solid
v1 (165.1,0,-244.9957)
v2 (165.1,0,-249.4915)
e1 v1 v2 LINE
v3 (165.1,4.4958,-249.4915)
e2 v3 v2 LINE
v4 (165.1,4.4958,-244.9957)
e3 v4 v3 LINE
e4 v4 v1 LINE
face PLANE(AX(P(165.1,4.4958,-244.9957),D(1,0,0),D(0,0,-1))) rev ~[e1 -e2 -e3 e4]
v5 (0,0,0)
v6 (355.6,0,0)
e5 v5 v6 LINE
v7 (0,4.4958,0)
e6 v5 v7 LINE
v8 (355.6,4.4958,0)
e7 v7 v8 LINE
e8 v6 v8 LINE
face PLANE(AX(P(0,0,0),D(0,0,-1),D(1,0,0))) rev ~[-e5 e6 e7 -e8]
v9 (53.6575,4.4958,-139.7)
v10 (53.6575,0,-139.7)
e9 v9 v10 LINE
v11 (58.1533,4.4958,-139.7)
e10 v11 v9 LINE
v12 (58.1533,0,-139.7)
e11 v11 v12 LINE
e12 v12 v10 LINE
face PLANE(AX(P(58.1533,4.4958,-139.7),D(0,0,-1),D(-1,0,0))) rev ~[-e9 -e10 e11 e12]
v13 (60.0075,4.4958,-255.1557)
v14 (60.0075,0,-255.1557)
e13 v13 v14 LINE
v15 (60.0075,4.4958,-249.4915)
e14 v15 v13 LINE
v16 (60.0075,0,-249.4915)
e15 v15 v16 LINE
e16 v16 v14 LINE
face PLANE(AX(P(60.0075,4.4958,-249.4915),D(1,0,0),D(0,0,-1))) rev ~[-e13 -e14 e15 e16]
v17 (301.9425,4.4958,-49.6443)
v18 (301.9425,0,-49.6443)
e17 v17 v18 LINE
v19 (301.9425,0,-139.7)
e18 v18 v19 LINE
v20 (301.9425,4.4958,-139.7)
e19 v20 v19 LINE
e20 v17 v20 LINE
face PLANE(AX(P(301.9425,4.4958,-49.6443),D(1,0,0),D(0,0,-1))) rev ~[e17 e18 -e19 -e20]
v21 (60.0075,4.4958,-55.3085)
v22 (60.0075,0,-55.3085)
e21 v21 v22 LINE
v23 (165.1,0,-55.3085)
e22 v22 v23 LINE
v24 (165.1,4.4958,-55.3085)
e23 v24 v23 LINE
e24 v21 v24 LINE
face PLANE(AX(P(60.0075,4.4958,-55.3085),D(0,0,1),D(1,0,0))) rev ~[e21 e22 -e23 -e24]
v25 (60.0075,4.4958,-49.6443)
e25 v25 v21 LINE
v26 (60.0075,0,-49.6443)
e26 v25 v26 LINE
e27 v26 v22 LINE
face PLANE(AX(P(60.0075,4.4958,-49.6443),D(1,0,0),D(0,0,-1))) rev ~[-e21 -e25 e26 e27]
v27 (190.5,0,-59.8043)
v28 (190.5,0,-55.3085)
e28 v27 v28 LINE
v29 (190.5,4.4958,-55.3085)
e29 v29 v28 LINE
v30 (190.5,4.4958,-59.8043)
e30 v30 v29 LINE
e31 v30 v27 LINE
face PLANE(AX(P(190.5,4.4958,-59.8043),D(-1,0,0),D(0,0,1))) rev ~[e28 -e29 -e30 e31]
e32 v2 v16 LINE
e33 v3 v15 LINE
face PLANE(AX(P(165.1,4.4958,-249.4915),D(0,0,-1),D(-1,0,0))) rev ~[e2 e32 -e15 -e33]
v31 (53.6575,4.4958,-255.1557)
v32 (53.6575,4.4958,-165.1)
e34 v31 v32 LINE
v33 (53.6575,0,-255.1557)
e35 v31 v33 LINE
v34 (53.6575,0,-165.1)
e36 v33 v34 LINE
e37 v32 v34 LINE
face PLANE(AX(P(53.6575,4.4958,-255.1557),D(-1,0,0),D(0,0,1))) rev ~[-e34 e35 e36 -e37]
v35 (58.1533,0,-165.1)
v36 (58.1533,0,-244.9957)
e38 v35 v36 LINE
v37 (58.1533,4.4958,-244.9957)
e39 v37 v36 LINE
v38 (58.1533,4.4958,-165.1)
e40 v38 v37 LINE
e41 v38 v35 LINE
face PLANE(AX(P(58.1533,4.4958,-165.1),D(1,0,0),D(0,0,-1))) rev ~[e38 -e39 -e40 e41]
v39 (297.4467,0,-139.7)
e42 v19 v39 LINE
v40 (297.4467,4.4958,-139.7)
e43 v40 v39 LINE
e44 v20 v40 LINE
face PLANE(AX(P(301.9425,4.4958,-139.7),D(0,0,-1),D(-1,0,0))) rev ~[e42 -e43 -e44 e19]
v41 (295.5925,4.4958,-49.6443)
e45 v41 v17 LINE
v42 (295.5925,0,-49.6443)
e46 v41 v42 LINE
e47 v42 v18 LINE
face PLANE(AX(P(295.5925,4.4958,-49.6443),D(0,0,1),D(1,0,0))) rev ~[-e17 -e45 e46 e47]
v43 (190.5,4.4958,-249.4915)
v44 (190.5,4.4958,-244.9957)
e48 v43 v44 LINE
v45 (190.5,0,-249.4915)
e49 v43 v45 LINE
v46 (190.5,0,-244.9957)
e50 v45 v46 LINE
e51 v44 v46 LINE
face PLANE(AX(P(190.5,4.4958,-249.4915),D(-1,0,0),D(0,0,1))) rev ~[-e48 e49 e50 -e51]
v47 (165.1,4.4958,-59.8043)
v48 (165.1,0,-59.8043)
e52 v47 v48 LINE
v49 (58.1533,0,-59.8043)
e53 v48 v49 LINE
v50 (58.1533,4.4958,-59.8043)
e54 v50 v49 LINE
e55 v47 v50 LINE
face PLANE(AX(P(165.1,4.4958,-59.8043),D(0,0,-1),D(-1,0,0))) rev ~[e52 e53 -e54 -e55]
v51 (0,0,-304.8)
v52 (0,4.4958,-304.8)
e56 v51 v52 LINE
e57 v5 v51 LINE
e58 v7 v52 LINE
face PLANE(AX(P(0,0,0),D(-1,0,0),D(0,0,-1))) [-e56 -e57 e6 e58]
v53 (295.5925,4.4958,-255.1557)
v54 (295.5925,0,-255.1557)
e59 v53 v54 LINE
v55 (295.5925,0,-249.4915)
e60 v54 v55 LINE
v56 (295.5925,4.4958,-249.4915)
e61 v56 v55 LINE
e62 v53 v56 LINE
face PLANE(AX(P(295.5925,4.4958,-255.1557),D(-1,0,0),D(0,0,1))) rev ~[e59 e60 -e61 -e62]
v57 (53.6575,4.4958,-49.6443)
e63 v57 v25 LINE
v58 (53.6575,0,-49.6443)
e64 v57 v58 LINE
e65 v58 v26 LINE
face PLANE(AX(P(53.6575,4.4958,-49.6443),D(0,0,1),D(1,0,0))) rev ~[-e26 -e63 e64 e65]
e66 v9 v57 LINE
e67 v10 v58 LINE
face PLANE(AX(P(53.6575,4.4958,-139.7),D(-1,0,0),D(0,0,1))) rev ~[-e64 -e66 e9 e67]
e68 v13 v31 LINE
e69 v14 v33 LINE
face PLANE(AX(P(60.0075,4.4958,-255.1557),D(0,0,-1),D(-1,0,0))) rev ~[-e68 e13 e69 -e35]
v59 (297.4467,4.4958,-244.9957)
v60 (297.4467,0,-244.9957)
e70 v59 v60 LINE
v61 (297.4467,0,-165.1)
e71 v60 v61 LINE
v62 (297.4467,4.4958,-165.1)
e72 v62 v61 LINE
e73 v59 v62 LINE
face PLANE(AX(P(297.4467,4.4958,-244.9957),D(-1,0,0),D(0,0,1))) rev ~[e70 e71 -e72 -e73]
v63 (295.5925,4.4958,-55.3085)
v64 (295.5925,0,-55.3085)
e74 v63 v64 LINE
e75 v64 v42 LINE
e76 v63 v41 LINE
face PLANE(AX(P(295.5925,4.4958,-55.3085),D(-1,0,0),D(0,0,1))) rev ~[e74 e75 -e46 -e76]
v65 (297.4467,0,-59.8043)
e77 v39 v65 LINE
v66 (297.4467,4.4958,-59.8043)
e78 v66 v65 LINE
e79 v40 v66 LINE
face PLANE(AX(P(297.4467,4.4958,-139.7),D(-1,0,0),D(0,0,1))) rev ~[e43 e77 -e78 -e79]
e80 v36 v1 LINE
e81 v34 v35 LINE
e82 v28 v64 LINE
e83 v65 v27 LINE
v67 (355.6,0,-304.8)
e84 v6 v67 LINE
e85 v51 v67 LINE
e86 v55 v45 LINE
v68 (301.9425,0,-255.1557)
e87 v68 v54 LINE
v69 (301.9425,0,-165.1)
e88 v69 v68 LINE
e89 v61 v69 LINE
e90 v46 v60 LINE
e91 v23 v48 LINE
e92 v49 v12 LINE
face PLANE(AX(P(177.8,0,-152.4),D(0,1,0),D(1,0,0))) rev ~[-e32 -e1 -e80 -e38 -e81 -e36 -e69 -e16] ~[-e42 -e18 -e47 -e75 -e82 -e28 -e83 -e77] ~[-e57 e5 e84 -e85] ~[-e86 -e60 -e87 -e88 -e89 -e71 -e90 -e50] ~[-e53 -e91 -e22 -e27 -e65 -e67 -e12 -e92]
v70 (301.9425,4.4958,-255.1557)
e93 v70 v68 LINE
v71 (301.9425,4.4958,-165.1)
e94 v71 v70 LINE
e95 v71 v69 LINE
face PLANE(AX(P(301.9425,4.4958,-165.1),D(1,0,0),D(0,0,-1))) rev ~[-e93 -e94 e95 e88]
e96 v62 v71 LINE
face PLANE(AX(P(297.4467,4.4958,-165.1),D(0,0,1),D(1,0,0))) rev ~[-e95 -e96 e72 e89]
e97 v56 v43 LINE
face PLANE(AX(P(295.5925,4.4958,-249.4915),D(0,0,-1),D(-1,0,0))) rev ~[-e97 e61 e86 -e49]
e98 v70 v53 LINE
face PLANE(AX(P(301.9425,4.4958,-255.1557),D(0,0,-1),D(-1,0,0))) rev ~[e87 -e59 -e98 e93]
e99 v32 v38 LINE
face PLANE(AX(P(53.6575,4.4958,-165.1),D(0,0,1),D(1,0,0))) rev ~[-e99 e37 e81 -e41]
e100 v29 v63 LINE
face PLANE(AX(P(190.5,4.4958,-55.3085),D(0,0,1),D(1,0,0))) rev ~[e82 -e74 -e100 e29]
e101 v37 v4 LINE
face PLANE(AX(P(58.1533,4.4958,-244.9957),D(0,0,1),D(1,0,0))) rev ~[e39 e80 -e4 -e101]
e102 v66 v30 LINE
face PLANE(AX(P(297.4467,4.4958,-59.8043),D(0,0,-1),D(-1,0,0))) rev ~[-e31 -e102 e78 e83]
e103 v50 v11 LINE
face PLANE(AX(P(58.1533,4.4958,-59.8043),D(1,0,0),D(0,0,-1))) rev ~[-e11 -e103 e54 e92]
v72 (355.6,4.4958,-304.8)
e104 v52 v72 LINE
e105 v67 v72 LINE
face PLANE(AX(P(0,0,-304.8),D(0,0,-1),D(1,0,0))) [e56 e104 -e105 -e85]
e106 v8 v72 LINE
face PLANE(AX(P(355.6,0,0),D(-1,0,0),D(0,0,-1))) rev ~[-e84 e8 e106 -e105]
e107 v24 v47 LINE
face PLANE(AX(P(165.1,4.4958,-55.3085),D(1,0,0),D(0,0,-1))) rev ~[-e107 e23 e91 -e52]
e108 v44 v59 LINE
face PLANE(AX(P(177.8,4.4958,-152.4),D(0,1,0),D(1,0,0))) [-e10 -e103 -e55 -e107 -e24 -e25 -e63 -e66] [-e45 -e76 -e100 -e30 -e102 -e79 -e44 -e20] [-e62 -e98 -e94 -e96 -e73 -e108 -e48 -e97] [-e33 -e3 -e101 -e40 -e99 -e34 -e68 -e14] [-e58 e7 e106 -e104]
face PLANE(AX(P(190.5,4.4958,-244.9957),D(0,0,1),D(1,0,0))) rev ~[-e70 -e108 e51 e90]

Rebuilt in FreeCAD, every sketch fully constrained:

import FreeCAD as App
import Part
import Sketcher

V = App.Vector
Q = App.Units.Quantity

doc = App.newDocument("Part")
body = doc.addObject("PartDesign::Body", "Body")

# Sketch on XZ plane
sketch1 = doc.addObject("Sketcher::SketchObject", "Sketch")
body.addObject(sketch1)
sketch1.AttachmentSupport = (doc.XZ_Plane, [""])
sketch1.MapMode = "FlatFace"
sketch1.addGeometry([
    Part.LineSegment(V(0, -305, 0), V(0, 0, 0)),
    Part.LineSegment(V(0, 0, 0), V(356, 0, 0)),
    Part.LineSegment(V(356, 0, 0), V(356, -305, 0)),
    Part.LineSegment(V(356, -305, 0), V(0, -305, 0)),
], False)
sketch1.addConstraint([
    Sketcher.Constraint("Coincident", 0, 2, 1, 1),
    Sketcher.Constraint("Coincident", 1, 2, 2, 1),
    Sketcher.Constraint("Coincident", 2, 2, 3, 1),
    Sketcher.Constraint("Coincident", 3, 2, 0, 1),
    Sketcher.Constraint("Vertical", 0),
    Sketcher.Constraint("Horizontal", 1),
    Sketcher.Constraint("Vertical", 2),
    Sketcher.Constraint("Horizontal", 3),
    Sketcher.Constraint("Coincident", 0, 2, -1, 1),
    Sketcher.Constraint("DistanceX", 1, 1, 1, 2, Q("14 in")),
    Sketcher.Constraint("DistanceY", 0, 1, 0, 2, Q("12 in")),
])
pad1 = doc.addObject("PartDesign::Pad", "Pad")
body.addObject(pad1)
pad1.Profile = sketch1
pad1.Length = Q("0.177 in")
pad1.Reversed = True

# Sketch on XZ plane
sketch2 = doc.addObject("Sketcher::SketchObject", "Sketch001")
body.addObject(sketch2)
sketch2.AttachmentSupport = (doc.XZ_Plane, [""])
sketch2.MapMode = "FlatFace"
sketch2.AttachmentOffset = App.Placement(V(0, 0, -0.177 * 25.4), App.Rotation())
sketch2.addGeometry([
    Part.LineSegment(V(60, -49.6, 0), V(60, -55.3, 0)),  # 0
    Part.LineSegment(V(60, -55.3, 0), V(165.1, -55.3, 0)),  # 1
    Part.LineSegment(V(165.1, -55.3, 0), V(165.1, -59.8, 0)),  # 2
    Part.LineSegment(V(165.1, -59.8, 0), V(58.2, -59.8, 0)),  # 3
    Part.LineSegment(V(58.2, -59.8, 0), V(58.2, -139.7, 0)),  # 4
    Part.LineSegment(V(58.2, -139.7, 0), V(53.7, -139.7, 0)),  # 5
    Part.LineSegment(V(53.7, -139.7, 0), V(53.7, -49.6, 0)),  # 6
    Part.LineSegment(V(53.7, -49.6, 0), V(60, -49.6, 0)),  # 7
    Part.LineSegment(V(190.5, -59.8, 0), V(190.5, -55.3, 0)),  # 8
    Part.LineSegment(V(190.5, -55.3, 0), V(295.6, -55.3, 0)),  # 9
    Part.LineSegment(V(295.6, -55.3, 0), V(295.6, -49.6, 0)),  # 10
    Part.LineSegment(V(295.6, -49.6, 0), V(301.9, -49.6, 0)),  # 11
    Part.LineSegment(V(301.9, -49.6, 0), V(301.9, -139.7, 0)),  # 12
    Part.LineSegment(V(301.9, -139.7, 0), V(297.4, -139.7, 0)),  # 13
    Part.LineSegment(V(297.4, -139.7, 0), V(297.4, -59.8, 0)),  # 14
    Part.LineSegment(V(297.4, -59.8, 0), V(190.5, -59.8, 0)),  # 15
    Part.LineSegment(V(53.7, -165.1, 0), V(58.2, -165.1, 0)),  # 16
    Part.LineSegment(V(58.2, -165.1, 0), V(58.2, -245, 0)),  # 17
    Part.LineSegment(V(58.2, -245, 0), V(165.1, -245, 0)),  # 18
    Part.LineSegment(V(165.1, -245, 0), V(165.1, -249.5, 0)),  # 19
    Part.LineSegment(V(165.1, -249.5, 0), V(60, -249.5, 0)),  # 20
    Part.LineSegment(V(60, -249.5, 0), V(60, -255.2, 0)),  # 21
    Part.LineSegment(V(60, -255.2, 0), V(53.7, -255.2, 0)),  # 22
    Part.LineSegment(V(53.7, -255.2, 0), V(53.7, -165.1, 0)),  # 23
    Part.LineSegment(V(297.4, -245, 0), V(297.4, -165.1, 0)),  # 24
    Part.LineSegment(V(297.4, -165.1, 0), V(301.9, -165.1, 0)),  # 25
    Part.LineSegment(V(301.9, -165.1, 0), V(301.9, -255.2, 0)),  # 26
    Part.LineSegment(V(301.9, -255.2, 0), V(295.6, -255.2, 0)),  # 27
    Part.LineSegment(V(295.6, -255.2, 0), V(295.6, -249.5, 0)),  # 28
    Part.LineSegment(V(295.6, -249.5, 0), V(190.5, -249.5, 0)),  # 29
    Part.LineSegment(V(190.5, -249.5, 0), V(190.5, -245, 0)),  # 30
    Part.LineSegment(V(190.5, -245, 0), V(297.4, -245, 0)),  # 31
], False)
sketch2.addConstraint([
    Sketcher.Constraint("Coincident", 0, 2, 1, 1),
    Sketcher.Constraint("Coincident", 1, 2, 2, 1),
    Sketcher.Constraint("Coincident", 2, 2, 3, 1),
    Sketcher.Constraint("Coincident", 3, 2, 4, 1),
    Sketcher.Constraint("Coincident", 4, 2, 5, 1),
    Sketcher.Constraint("Coincident", 5, 2, 6, 1),
    Sketcher.Constraint("Coincident", 6, 2, 7, 1),
    Sketcher.Constraint("Coincident", 7, 2, 0, 1),
    Sketcher.Constraint("Coincident", 8, 2, 9, 1),
    Sketcher.Constraint("Coincident", 9, 2, 10, 1),
    Sketcher.Constraint("Coincident", 10, 2, 11, 1),
    Sketcher.Constraint("Coincident", 11, 2, 12, 1),
    Sketcher.Constraint("Coincident", 12, 2, 13, 1),
    Sketcher.Constraint("Coincident", 13, 2, 14, 1),
    Sketcher.Constraint("Coincident", 14, 2, 15, 1),
    Sketcher.Constraint("Coincident", 15, 2, 8, 1),
    Sketcher.Constraint("Coincident", 16, 2, 17, 1),
    Sketcher.Constraint("Coincident", 17, 2, 18, 1),
    Sketcher.Constraint("Coincident", 18, 2, 19, 1),
    Sketcher.Constraint("Coincident", 19, 2, 20, 1),
    Sketcher.Constraint("Coincident", 20, 2, 21, 1),
    Sketcher.Constraint("Coincident", 21, 2, 22, 1),
    Sketcher.Constraint("Coincident", 22, 2, 23, 1),
    Sketcher.Constraint("Coincident", 23, 2, 16, 1),
    Sketcher.Constraint("Coincident", 24, 2, 25, 1),
    Sketcher.Constraint("Coincident", 25, 2, 26, 1),
    Sketcher.Constraint("Coincident", 26, 2, 27, 1),
    Sketcher.Constraint("Coincident", 27, 2, 28, 1),
    Sketcher.Constraint("Coincident", 28, 2, 29, 1),
    Sketcher.Constraint("Coincident", 29, 2, 30, 1),
    Sketcher.Constraint("Coincident", 30, 2, 31, 1),
    Sketcher.Constraint("Coincident", 31, 2, 24, 1),
    Sketcher.Constraint("Vertical", 0),
    Sketcher.Constraint("Horizontal", 1),
    Sketcher.Constraint("Vertical", 2),
    Sketcher.Constraint("Horizontal", 3),
    Sketcher.Constraint("Vertical", 4),
    Sketcher.Constraint("Horizontal", 5),
    Sketcher.Constraint("Vertical", 6),
    Sketcher.Constraint("Horizontal", 7),
    Sketcher.Constraint("Vertical", 8),
    Sketcher.Constraint("Horizontal", 9),
    Sketcher.Constraint("Vertical", 10),
    Sketcher.Constraint("Horizontal", 11),
    Sketcher.Constraint("Vertical", 12),
    Sketcher.Constraint("Horizontal", 13),
    Sketcher.Constraint("Vertical", 14),
    Sketcher.Constraint("Horizontal", 15),
    Sketcher.Constraint("Horizontal", 16),
    Sketcher.Constraint("Vertical", 17),
    Sketcher.Constraint("Horizontal", 18),
    Sketcher.Constraint("Vertical", 19),
    Sketcher.Constraint("Horizontal", 20),
    Sketcher.Constraint("Vertical", 21),
    Sketcher.Constraint("Horizontal", 22),
    Sketcher.Constraint("Vertical", 23),
    Sketcher.Constraint("Vertical", 24),
    Sketcher.Constraint("Horizontal", 25),
    Sketcher.Constraint("Vertical", 26),
    Sketcher.Constraint("Horizontal", 27),
    Sketcher.Constraint("Vertical", 28),
    Sketcher.Constraint("Horizontal", 29),
    Sketcher.Constraint("Vertical", 30),
    Sketcher.Constraint("Horizontal", 31),
    Sketcher.Constraint("Horizontal", 1, 2, 8, 2),
    Sketcher.Constraint("Horizontal", 7, 2, 10, 2),
    Sketcher.Constraint("Horizontal", 5, 2, 12, 2),
    Sketcher.Constraint("Horizontal", 3, 2, 14, 2),
    Sketcher.Constraint("Horizontal", 23, 2, 24, 2),
    Sketcher.Constraint("Horizontal", 22, 2, 26, 2),
    Sketcher.Constraint("Horizontal", 20, 2, 28, 2),
    Sketcher.Constraint("Horizontal", 18, 2, 30, 2),
    Sketcher.Constraint("Vertical", 4, 2, 16, 2),
    Sketcher.Constraint("Vertical", 2, 2, 18, 2),
    Sketcher.Constraint("Vertical", 7, 2, 20, 2),
    Sketcher.Constraint("Vertical", 6, 2, 22, 2),
    Sketcher.Constraint("Vertical", 14, 2, 24, 2),
    Sketcher.Constraint("Vertical", 12, 2, 25, 2),
    Sketcher.Constraint("Vertical", 10, 2, 27, 2),
    Sketcher.Constraint("Vertical", 15, 2, 29, 2),
    Sketcher.Constraint("Equal", 1, 9),
    Sketcher.Constraint("Equal", 7, 11),
    Sketcher.Constraint("Equal", 5, 13),
    Sketcher.Constraint("Equal", 25, 2),
    Sketcher.Constraint("Equal", 14, 17),
    Sketcher.Constraint("Equal", 8, 19),
    Sketcher.Constraint("Equal", 10, 21),
    Sketcher.Constraint("DistanceX", 1, 2, 8, 2, Q("1 in")),
    Sketcher.Constraint("DistanceY", 16, 2, 4, 2, Q("1 in")),
    Sketcher.Constraint("DistanceX", 7, 1, 7, 2, Q("0.25 in")),
    Sketcher.Constraint("DistanceX", -1, 1, 1, 2, Q("6.5 in")),
    Sketcher.Constraint("DistanceY", 4, 2, -1, 1, Q("5.5 in")),
    Sketcher.Constraint("DistanceY", 3, 2, 6, 2, Q("0.4 in")),
    Sketcher.Constraint("DistanceX", 5, 2, 5, 1, Q("0.177 in")),
    Sketcher.Constraint("DistanceX", 1, 1, 1, 2, Q("4.1375 in")),
    Sketcher.Constraint("DistanceY", 4, 2, 4, 1, Q("3.1455 in")),
])
pocket1 = doc.addObject("PartDesign::Pocket", "Pocket")
body.addObject(pocket1)
pocket1.Profile = sketch2
pocket1.Length = Q("0.25 in")
pocket1.Reversed = True

doc.recompute()
